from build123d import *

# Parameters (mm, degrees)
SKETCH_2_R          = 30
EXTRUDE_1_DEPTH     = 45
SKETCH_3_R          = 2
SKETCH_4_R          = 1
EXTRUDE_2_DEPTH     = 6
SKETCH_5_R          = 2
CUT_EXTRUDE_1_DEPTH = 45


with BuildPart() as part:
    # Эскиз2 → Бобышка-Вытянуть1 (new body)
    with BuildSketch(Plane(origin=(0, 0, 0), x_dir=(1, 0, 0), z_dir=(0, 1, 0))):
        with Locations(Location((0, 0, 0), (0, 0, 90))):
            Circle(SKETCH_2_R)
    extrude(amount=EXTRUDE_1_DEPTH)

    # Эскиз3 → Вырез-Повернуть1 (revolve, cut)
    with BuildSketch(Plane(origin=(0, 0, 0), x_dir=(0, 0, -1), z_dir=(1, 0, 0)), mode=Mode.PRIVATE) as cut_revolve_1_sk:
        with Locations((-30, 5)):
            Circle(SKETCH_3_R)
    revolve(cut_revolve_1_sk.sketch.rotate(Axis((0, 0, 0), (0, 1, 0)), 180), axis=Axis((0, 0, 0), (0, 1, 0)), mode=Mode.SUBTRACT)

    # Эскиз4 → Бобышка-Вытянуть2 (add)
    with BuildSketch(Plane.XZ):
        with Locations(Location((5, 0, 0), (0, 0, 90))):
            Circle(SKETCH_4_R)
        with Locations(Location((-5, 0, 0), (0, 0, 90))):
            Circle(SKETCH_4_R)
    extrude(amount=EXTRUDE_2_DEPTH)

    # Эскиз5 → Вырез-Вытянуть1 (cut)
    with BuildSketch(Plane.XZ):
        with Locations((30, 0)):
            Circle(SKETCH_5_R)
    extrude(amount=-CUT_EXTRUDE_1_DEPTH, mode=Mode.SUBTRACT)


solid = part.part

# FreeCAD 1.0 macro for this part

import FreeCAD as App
import Part
import Sketcher

V = App.Vector
Q = App.Units.Quantity

doc = App.newDocument("Part")
body = doc.addObject("PartDesign::Body", "Body")

# Sketch on XZ plane
sketch1 = body.newObject("Sketcher::SketchObject", "Sketch")
sketch1.AttachmentSupport = (doc.getObject("XZ_Plane"), [""])
sketch1.MapMode = "FlatFace"
sketch1.addGeometry(Part.Circle(V(0, 0, 0), V(0, 0, 1), 30), False)
sketch1.addConstraint(Sketcher.Constraint("Coincident", 0, 3, -1, 1))
sketch1.addConstraint(Sketcher.Constraint("Diameter", 0, Q("60 mm")))
pad1 = body.newObject("PartDesign::Pad", "Pad")
pad1.Profile = sketch1
pad1.Length = 45
pad1.Reversed = True

# Sketch on YZ plane
sketch2 = body.newObject("Sketcher::SketchObject", "Sketch001")
sketch2.AttachmentSupport = (doc.getObject("YZ_Plane"), [""])
sketch2.MapMode = "FlatFace"
sketch2.addGeometry(Part.Circle(V(5, 30, 0), V(0, 0, 1), 2), False)
sketch2.addConstraint(Sketcher.Constraint("Diameter", 0, Q("4 mm")))
sketch2.addConstraint(Sketcher.Constraint("DistanceX", -1, 1, 0, 3, Q("5 mm")))
sketch2.addConstraint(Sketcher.Constraint("DistanceY", -1, 1, 0, 3, Q("30 mm")))
groove = body.newObject("PartDesign::Groove", "Groove")
groove.Profile = sketch2
groove.ReferenceAxis = (sketch2, ["H_Axis"])
groove.Angle = 360

# Sketch on XZ plane
sketch3 = body.newObject("Sketcher::SketchObject", "Sketch002")
sketch3.AttachmentSupport = (doc.getObject("XZ_Plane"), [""])
sketch3.MapMode = "FlatFace"
sketch3.addGeometry(Part.Circle(V(5, 0, 0), V(0, 0, 1), 1), False)
sketch3.addGeometry(Part.Circle(V(-5, 0, 0), V(0, 0, 1), 1), False)
sketch3.addConstraint(Sketcher.Constraint("Equal", 0, 1))
sketch3.addConstraint(Sketcher.Constraint("Symmetric", 0, 3, 1, 3, -1, 1))
sketch3.addConstraint(Sketcher.Constraint("PointOnObject", 0, 3, -1))
sketch3.addConstraint(Sketcher.Constraint("Diameter", 0, Q("2 mm")))
sketch3.addConstraint(Sketcher.Constraint("DistanceX", -1, 1, 0, 3, Q("5 mm")))
pad2 = body.newObject("PartDesign::Pad", "Pad001")
pad2.Profile = sketch3
pad2.Length = 6

# Sketch on XZ plane
sketch4 = body.newObject("Sketcher::SketchObject", "Sketch003")
sketch4.AttachmentSupport = (doc.getObject("XZ_Plane"), [""])
sketch4.MapMode = "FlatFace"
sketch4.addGeometry(Part.Circle(V(30, 0, 0), V(0, 0, 1), 2), False)
sketch4.addConstraint(Sketcher.Constraint("PointOnObject", 0, 3, -1))
sketch4.addConstraint(Sketcher.Constraint("Diameter", 0, Q("4 mm")))
sketch4.addConstraint(Sketcher.Constraint("DistanceX", -1, 1, 0, 3, Q("30 mm")))
pocket1 = body.newObject("PartDesign::Pocket", "Pocket")
pocket1.Profile = sketch4
pocket1.Length = 45

doc.recompute()
